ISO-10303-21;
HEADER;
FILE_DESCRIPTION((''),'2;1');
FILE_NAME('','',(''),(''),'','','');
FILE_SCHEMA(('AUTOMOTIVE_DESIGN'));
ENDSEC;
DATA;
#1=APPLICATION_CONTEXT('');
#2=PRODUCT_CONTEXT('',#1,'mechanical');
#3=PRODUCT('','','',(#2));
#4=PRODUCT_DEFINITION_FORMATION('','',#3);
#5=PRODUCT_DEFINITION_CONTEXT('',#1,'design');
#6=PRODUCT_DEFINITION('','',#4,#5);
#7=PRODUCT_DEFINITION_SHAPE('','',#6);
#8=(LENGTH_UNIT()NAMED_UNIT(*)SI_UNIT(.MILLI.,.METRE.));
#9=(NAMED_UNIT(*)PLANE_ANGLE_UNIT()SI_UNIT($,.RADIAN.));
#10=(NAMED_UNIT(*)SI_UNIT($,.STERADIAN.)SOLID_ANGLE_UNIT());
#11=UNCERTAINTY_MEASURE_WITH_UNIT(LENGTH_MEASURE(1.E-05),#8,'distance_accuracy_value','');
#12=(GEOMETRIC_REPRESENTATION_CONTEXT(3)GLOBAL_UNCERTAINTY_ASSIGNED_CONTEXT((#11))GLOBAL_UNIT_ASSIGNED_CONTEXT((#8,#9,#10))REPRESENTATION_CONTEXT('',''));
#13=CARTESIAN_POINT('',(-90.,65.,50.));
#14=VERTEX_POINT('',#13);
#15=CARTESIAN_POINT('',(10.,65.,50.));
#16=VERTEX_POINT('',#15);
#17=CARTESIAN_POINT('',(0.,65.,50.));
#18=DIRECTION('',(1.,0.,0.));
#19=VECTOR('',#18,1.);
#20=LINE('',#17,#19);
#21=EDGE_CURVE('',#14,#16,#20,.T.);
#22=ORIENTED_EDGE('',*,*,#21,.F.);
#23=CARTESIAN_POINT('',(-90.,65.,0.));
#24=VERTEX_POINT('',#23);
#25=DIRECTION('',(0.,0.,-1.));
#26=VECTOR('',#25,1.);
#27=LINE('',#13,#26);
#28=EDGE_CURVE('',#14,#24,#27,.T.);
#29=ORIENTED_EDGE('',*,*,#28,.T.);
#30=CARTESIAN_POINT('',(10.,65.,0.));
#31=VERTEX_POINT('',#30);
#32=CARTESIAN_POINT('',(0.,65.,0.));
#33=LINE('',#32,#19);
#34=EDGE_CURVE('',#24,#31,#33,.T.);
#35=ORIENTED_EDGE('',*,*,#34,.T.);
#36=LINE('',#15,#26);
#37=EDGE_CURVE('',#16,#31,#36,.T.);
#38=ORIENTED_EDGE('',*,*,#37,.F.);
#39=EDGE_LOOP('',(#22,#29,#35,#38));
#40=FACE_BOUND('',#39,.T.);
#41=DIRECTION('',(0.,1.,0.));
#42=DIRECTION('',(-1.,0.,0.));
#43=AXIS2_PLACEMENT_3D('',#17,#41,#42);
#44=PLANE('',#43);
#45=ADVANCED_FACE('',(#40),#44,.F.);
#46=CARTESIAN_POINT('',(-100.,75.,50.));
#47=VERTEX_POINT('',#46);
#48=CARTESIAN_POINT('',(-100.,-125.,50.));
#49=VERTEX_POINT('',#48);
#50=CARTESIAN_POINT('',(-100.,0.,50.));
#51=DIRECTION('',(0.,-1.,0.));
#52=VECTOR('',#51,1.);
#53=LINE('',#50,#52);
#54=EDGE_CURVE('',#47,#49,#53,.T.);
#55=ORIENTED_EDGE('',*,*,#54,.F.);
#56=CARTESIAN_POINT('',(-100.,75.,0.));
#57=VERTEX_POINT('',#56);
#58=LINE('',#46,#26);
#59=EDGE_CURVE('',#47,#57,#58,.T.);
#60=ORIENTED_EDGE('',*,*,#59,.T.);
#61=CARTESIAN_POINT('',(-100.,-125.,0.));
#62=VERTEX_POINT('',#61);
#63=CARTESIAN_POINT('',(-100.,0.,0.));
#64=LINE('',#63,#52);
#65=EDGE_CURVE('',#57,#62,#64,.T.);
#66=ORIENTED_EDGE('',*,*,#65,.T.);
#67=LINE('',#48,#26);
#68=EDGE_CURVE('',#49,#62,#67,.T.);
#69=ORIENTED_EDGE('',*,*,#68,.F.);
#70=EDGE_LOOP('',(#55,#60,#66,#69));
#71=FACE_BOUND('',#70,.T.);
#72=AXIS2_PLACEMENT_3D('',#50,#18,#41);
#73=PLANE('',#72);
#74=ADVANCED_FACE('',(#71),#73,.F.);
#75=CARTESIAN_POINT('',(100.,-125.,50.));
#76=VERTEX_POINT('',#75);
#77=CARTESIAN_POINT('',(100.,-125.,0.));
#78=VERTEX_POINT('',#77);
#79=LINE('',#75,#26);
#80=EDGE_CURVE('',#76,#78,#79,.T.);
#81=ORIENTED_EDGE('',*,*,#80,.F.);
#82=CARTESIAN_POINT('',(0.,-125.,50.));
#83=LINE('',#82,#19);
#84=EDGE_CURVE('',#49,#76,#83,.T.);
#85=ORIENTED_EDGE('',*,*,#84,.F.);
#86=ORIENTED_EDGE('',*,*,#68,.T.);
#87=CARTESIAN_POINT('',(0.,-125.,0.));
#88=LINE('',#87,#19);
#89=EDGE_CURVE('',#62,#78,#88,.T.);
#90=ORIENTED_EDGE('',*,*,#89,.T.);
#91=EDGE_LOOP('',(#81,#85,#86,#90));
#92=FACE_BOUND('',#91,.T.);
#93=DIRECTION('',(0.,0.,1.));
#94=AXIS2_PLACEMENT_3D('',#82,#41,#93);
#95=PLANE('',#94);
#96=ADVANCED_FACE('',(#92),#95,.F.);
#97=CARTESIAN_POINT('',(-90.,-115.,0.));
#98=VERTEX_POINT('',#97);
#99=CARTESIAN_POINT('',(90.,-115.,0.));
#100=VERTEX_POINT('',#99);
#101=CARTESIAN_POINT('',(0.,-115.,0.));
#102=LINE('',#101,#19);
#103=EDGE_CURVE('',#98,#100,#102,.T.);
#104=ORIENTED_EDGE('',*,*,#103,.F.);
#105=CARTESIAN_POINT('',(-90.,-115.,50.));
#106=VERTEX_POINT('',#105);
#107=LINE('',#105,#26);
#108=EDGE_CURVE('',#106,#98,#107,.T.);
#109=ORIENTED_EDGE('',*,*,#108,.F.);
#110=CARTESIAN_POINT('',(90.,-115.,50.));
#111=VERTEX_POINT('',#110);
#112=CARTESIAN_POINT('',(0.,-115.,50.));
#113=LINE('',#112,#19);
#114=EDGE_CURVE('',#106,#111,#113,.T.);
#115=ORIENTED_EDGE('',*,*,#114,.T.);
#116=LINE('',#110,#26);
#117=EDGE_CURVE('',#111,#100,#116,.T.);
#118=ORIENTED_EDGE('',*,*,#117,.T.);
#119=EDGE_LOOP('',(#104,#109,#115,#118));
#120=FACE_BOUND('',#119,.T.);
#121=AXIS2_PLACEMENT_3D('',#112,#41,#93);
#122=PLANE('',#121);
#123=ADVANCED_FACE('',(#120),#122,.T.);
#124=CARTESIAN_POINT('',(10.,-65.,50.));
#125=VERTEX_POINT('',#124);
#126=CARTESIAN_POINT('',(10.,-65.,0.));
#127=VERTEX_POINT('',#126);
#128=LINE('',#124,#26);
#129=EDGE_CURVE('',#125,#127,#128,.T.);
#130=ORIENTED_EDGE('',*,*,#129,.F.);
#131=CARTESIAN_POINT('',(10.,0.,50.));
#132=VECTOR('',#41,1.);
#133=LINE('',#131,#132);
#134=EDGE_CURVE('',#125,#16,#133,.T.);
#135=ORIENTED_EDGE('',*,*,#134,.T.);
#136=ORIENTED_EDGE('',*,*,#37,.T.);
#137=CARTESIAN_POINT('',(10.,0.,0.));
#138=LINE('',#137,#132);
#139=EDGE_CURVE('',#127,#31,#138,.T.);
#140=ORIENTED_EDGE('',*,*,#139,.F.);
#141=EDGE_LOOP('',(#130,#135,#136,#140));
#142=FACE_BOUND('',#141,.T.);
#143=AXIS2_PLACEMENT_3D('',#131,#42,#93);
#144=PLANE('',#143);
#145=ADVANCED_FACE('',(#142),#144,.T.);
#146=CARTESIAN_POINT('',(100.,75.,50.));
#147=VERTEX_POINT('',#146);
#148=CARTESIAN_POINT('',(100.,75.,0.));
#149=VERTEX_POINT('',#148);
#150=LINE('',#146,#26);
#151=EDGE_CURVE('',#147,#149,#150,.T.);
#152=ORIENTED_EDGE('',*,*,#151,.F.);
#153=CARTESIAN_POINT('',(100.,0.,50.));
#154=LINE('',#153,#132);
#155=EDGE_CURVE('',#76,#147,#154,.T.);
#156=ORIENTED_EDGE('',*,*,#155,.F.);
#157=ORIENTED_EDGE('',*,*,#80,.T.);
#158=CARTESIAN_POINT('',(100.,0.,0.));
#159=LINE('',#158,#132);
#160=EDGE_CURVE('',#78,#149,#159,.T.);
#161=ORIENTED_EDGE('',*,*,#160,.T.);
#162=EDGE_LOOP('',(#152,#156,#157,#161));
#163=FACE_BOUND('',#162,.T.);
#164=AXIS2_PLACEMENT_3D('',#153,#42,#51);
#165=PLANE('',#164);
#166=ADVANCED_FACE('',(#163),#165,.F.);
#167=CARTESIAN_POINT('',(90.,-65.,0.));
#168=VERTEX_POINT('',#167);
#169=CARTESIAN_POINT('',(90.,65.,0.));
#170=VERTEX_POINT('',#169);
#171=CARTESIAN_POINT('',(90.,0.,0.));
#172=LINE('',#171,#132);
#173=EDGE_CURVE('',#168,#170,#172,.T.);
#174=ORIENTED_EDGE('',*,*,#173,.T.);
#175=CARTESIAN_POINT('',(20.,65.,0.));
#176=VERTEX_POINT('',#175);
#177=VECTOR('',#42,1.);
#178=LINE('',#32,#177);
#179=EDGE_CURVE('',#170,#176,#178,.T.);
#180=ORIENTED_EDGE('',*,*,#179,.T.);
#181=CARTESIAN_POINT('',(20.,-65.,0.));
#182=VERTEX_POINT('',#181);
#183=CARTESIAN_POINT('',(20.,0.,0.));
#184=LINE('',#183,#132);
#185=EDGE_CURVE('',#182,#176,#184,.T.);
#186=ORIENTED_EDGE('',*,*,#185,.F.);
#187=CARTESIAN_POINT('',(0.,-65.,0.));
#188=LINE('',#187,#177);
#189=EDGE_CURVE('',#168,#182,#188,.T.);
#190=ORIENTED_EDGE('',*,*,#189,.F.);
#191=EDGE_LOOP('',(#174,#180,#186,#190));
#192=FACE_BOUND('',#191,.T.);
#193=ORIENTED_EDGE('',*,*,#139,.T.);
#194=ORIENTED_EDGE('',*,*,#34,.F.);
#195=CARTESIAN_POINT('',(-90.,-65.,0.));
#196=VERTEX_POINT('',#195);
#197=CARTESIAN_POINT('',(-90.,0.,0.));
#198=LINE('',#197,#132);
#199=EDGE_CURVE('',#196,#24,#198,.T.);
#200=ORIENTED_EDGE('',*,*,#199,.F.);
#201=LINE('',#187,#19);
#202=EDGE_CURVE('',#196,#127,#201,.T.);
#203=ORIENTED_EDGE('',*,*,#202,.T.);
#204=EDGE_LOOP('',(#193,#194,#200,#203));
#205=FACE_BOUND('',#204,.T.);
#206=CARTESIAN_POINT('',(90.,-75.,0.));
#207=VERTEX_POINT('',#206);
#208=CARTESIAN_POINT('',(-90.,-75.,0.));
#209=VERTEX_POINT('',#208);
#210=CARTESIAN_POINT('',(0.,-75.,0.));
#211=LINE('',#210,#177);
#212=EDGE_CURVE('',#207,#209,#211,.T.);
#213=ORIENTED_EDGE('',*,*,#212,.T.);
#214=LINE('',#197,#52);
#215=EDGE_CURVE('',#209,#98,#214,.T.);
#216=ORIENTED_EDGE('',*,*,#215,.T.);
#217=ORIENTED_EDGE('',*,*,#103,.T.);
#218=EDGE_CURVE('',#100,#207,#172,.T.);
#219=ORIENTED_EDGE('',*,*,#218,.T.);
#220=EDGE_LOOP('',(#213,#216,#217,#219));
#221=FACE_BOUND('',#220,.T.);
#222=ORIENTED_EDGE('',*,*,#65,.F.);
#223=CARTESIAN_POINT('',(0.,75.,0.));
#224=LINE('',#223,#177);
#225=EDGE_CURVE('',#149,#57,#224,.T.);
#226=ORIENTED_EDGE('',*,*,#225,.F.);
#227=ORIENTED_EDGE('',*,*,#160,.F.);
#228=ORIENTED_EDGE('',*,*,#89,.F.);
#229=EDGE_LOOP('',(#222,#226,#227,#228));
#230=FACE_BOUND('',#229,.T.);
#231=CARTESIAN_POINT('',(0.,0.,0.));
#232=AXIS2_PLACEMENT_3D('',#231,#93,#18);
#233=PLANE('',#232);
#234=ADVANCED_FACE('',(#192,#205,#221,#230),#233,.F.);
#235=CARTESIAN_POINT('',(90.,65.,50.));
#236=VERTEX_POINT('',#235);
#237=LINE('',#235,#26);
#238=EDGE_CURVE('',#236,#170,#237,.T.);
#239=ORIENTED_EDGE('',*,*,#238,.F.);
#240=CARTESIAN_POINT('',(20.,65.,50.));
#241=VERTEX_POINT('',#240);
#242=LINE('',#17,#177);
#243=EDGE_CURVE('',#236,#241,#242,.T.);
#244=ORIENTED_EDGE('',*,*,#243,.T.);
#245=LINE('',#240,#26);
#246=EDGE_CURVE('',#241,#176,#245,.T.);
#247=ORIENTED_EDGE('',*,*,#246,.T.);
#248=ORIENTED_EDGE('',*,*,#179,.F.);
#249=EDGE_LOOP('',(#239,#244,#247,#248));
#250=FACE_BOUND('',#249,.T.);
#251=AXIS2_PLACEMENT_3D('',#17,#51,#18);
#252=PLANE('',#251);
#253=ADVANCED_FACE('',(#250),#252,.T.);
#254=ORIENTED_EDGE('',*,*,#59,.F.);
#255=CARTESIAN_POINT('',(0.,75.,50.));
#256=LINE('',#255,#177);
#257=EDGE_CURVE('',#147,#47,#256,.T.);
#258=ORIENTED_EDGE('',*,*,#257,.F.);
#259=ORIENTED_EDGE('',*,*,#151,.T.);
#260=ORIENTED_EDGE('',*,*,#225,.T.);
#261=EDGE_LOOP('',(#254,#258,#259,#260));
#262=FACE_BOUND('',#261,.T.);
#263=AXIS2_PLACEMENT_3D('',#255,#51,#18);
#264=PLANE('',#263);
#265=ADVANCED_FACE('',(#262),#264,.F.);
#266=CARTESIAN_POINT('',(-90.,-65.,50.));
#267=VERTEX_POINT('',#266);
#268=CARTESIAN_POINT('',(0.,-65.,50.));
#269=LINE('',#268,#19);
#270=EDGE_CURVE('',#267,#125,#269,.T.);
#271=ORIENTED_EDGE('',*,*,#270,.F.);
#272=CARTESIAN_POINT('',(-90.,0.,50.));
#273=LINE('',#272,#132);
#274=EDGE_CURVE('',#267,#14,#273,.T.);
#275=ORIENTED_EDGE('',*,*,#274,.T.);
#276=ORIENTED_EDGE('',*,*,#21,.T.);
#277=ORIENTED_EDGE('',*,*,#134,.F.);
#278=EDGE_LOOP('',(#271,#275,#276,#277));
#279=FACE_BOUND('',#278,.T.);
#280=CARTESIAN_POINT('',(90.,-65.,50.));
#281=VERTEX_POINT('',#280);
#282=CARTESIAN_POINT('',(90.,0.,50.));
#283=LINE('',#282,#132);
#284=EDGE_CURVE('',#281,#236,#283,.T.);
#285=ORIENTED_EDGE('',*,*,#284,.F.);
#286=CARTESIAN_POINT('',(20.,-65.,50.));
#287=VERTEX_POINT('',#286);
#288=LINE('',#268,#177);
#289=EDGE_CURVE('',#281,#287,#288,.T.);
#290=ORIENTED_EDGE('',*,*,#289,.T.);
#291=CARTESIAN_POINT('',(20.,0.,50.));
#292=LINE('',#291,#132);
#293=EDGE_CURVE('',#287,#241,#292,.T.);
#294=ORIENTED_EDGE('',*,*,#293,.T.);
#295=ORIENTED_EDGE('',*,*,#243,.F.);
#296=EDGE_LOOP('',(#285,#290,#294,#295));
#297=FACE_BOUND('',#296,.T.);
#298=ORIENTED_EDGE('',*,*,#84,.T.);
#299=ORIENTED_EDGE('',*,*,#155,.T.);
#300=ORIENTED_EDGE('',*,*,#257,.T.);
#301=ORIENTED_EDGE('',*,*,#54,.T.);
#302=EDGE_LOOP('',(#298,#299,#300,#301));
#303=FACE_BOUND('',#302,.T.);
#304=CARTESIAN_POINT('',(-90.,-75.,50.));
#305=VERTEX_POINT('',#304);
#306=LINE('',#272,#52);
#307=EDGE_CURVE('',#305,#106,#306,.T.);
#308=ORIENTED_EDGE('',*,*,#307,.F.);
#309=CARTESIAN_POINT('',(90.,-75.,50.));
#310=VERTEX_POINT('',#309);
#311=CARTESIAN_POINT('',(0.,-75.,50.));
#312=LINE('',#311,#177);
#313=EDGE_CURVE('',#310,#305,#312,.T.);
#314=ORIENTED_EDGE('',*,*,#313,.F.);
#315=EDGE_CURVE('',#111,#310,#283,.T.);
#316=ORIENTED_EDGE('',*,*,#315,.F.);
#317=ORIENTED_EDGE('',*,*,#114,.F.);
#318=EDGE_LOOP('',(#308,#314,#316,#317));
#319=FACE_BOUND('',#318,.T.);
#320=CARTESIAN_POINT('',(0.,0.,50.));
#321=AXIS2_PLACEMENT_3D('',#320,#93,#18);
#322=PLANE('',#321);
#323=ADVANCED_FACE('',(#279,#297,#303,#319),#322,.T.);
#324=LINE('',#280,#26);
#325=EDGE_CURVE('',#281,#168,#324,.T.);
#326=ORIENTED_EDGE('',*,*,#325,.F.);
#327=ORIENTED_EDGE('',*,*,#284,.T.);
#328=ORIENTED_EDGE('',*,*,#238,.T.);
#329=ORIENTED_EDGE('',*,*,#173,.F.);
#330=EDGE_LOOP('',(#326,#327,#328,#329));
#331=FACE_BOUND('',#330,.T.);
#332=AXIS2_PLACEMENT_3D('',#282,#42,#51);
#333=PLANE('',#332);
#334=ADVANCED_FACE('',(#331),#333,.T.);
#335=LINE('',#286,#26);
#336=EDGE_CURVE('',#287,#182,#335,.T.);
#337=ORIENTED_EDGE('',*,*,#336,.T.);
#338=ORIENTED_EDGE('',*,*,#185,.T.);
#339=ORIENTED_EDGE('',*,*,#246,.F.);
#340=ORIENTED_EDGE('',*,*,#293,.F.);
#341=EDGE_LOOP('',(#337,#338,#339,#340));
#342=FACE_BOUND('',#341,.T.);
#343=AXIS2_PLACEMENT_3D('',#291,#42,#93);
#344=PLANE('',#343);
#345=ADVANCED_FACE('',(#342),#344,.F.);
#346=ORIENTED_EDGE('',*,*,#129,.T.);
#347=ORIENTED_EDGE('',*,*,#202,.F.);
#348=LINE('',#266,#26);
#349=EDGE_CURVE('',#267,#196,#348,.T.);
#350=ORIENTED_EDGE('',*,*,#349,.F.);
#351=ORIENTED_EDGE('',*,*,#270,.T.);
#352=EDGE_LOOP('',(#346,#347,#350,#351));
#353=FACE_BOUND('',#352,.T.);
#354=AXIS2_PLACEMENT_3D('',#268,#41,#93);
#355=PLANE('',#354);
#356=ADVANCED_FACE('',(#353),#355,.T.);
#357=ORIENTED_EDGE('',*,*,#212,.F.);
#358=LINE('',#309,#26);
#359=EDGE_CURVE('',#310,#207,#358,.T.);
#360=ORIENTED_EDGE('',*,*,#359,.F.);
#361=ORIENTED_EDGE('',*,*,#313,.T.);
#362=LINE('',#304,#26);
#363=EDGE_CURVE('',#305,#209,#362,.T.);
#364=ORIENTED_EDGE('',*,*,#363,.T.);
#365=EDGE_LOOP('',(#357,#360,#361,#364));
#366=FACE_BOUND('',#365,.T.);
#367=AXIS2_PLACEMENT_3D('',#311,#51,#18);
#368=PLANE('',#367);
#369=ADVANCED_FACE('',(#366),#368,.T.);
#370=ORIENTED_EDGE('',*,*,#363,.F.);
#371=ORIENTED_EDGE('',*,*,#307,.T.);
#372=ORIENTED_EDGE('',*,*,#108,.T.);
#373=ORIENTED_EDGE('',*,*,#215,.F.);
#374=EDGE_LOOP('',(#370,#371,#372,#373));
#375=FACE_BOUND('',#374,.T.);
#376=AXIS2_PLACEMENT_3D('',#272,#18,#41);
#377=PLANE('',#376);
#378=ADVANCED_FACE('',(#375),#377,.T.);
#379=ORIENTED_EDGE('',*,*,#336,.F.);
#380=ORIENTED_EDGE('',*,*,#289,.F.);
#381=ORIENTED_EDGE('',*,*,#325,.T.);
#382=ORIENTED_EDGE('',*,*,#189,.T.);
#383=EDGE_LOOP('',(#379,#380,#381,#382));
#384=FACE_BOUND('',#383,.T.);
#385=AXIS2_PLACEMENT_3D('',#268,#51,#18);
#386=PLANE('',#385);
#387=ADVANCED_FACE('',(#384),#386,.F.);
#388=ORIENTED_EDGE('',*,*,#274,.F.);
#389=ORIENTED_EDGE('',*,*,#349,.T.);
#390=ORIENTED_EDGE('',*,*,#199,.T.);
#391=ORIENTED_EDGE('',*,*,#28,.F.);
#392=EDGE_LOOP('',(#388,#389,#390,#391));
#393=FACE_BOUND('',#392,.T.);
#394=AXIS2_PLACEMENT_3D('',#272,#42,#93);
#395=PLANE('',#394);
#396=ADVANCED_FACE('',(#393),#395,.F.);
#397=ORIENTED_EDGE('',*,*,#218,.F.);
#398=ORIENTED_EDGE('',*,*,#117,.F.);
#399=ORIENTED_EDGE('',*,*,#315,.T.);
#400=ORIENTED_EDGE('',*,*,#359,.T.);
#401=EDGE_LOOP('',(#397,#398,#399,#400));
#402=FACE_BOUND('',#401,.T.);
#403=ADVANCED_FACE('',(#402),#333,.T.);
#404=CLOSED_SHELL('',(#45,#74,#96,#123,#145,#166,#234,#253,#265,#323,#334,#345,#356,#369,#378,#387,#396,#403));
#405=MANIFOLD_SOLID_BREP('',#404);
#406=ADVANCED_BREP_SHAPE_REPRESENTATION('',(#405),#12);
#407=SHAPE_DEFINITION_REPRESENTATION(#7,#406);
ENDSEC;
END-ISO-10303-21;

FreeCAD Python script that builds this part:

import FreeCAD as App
import Part
import Sketcher
from FreeCAD import Vector
Q = App.Units.Quantity


def add_polygon(sketch, points):
    """Adds a closed chain of lines whose ends are joined by coincident constraints."""
    first, n = sketch.GeometryCount, len(points)
    for a, b in zip(points, points[1:] + points[:1]):
        sketch.addGeometry(Part.LineSegment(App.Vector(*a, 0), App.Vector(*b, 0)), False)
    for i in range(n):
        sketch.addConstraint(Sketcher.Constraint("Coincident", first + i, 2, first + (i + 1) % n, 1))

doc = App.newDocument("Part")
body = doc.addObject("PartDesign::Body", "Body")

# Sketch on XY plane
sketch1 = body.newObject("Sketcher::SketchObject", "Sketch")
sketch1.AttachmentSupport = (doc.getObject("XY_Plane"), [""])
sketch1.MapMode = "FlatFace"
add_polygon(sketch1, [(-100, -125), (100, -125), (100, 75), (-100, 75)])  # lines 0-3
add_polygon(sketch1, [(-90, -115), (-90, -75), (90, -75), (90, -115)])  # lines 4-7
add_polygon(sketch1, [(20, -65), (20, 65), (90, 65), (90, -65)])  # lines 8-11
add_polygon(sketch1, [(10, -65), (-90, -65), (-90, 65), (10, 65)])  # lines 12-15
sketch1.addConstraint(Sketcher.Constraint("Horizontal", 0))
sketch1.addConstraint(Sketcher.Constraint("Vertical", 1))
sketch1.addConstraint(Sketcher.Constraint("Horizontal", 2))
sketch1.addConstraint(Sketcher.Constraint("Vertical", 3))
sketch1.addConstraint(Sketcher.Constraint("Vertical", 4))
sketch1.addConstraint(Sketcher.Constraint("Horizontal", 5))
sketch1.addConstraint(Sketcher.Constraint("Vertical", 6))
sketch1.addConstraint(Sketcher.Constraint("Horizontal", 7))
sketch1.addConstraint(Sketcher.Constraint("Vertical", 8))
sketch1.addConstraint(Sketcher.Constraint("Horizontal", 9))
sketch1.addConstraint(Sketcher.Constraint("Vertical", 10))
sketch1.addConstraint(Sketcher.Constraint("Horizontal", 11))
sketch1.addConstraint(Sketcher.Constraint("Horizontal", 12))
sketch1.addConstraint(Sketcher.Constraint("Vertical", 13))
sketch1.addConstraint(Sketcher.Constraint("Horizontal", 14))
sketch1.addConstraint(Sketcher.Constraint("Vertical", 15))
sketch1.addConstraint(Sketcher.Constraint("Symmetric", 9, 2, 12, 2, -1, 1))
sketch1.addConstraint(Sketcher.Constraint("Horizontal", 11, 2, 12, 2))
sketch1.addConstraint(Sketcher.Constraint("Horizontal", 9, 2, 13, 2))
sketch1.addConstraint(Sketcher.Constraint("Vertical", 6, 2, 9, 2))
sketch1.addConstraint(Sketcher.Constraint("Vertical", 7, 2, 12, 2))
sketch1.addConstraint(Sketcher.Constraint("Equal", 2, 1))
sketch1.addConstraint(Sketcher.Constraint("DistanceX", 0, 1, 0, 2, Q("200 mm")))
sketch1.addConstraint(Sketcher.Constraint("DistanceX", 5, 1, 5, 2, Q("180 mm")))
sketch1.addConstraint(Sketcher.Constraint("DistanceX", 9, 1, 9, 2, Q("70 mm")))
sketch1.addConstraint(Sketcher.Constraint("DistanceX", 12, 2, 12, 1, Q("100 mm")))
sketch1.addConstraint(Sketcher.Constraint("DistanceY", 4, 1, 4, 2, Q("40 mm")))
sketch1.addConstraint(Sketcher.Constraint("DistanceY", 8, 1, 8, 2, Q("130 mm")))
sketch1.addConstraint(Sketcher.Constraint("DistanceX", -1, 1, 0, 2, Q("100 mm")))
sketch1.addConstraint(Sketcher.Constraint("DistanceY", 0, 2, -1, 1, Q("125 mm")))
sketch1.addConstraint(Sketcher.Constraint("DistanceY", 4, 2, -1, 1, Q("75 mm")))
pad1 = body.newObject("PartDesign::Pad", "Pad")
pad1.Profile = sketch1
pad1.Length = 50

doc.recompute()
